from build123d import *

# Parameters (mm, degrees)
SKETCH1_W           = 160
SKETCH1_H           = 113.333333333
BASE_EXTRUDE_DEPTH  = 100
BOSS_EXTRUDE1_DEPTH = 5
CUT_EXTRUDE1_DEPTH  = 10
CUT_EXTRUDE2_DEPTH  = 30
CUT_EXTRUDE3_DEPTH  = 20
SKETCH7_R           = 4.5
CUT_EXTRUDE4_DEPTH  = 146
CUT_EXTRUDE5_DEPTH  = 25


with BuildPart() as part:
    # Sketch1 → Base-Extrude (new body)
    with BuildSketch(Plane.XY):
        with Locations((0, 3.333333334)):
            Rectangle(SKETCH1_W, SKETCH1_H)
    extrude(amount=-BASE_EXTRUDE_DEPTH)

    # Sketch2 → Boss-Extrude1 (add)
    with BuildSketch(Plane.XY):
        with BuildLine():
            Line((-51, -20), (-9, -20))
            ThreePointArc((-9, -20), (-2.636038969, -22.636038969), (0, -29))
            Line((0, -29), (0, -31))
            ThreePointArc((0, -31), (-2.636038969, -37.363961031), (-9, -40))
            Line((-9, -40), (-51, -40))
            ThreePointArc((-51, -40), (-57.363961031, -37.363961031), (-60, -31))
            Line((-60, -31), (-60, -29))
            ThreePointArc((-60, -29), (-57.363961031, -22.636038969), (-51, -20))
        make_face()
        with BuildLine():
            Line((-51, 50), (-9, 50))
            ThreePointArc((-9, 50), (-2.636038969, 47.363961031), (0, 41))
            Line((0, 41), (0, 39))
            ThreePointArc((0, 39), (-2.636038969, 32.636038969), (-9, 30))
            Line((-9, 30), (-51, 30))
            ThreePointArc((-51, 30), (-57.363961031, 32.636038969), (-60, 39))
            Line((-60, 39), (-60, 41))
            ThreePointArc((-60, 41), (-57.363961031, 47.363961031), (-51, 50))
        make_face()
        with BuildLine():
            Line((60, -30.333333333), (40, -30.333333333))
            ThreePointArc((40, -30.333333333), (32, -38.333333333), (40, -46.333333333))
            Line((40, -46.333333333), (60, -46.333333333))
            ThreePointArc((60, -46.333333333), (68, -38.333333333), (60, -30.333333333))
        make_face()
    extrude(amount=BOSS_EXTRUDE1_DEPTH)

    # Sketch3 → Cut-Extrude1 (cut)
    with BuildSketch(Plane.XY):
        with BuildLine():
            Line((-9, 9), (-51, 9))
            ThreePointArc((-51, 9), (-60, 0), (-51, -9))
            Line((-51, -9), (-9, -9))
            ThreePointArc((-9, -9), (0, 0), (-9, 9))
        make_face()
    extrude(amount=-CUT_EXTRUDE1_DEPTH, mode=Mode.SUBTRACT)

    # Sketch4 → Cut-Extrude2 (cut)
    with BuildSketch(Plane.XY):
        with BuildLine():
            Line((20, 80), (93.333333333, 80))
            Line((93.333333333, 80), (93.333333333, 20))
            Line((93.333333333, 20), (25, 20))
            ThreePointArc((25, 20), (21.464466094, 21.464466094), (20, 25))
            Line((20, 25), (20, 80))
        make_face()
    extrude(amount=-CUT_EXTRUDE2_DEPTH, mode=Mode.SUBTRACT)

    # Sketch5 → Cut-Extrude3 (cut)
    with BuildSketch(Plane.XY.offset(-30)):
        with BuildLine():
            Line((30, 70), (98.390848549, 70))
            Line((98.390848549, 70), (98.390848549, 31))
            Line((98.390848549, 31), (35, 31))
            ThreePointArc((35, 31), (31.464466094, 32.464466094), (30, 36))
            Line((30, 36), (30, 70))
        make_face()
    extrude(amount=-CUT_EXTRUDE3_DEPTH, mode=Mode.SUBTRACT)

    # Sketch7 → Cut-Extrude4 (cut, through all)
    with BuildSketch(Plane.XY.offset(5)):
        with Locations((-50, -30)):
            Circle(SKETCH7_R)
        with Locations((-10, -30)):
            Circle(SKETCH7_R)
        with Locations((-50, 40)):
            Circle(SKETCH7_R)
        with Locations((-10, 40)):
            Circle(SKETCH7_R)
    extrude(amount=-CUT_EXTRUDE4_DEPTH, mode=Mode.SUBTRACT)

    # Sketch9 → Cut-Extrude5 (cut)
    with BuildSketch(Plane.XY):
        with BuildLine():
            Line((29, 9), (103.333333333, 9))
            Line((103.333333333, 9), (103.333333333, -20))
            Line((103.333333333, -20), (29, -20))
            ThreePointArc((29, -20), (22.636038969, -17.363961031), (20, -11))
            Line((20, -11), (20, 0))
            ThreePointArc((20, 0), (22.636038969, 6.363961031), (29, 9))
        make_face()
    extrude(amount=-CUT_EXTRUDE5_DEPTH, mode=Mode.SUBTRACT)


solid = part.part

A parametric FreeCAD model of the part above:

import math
import FreeCAD as App
import Part
import Sketcher

doc = App.newDocument("Part")
params = doc.addObject("Spreadsheet::Sheet", "Params")
for row, (alias, value) in enumerate([
    ("sketch1_width", "160 mm"),
    ("pad1_length", "100 mm"),
    ("sketch2_radius", "9 mm"),
    ("sketch2_radius2", "8 mm"),
    ("sketch2_width", "42 mm"),
    ("sketch2_width2", "20 mm"),
    ("sketch2_height", "2 mm"),
    ("pad2_length", "5 mm"),
    ("sketch3_radius", "9 mm"),
    ("sketch3_width", "42 mm"),
    ("pocket1_length", "10 mm"),
    ("sketch4_radius", "5 mm"),
    ("sketch4_height", "55 mm"),
    ("pocket2_length", "30 mm"),
    ("sketch5_radius", "5 mm"),
    ("sketch5_height", "34 mm"),
    ("pocket3_length", "20 mm"),
    ("sketch6_diameter", "9 mm"),
    ("sketch7_radius", "9 mm"),
    ("sketch7_height", "11 mm"),
    ("pocket5_length", "25 mm"),
], start=1):
    params.set(f"A{row}", alias)
    params.set(f"B{row}", "=" + value)
    params.setAlias(f"B{row}", alias)

body = doc.addObject("PartDesign::Body", "Body")

# Sketch on XY plane
sketch1 = body.newObject("Sketcher::SketchObject", "Sketch")
sketch1.AttachmentSupport = (doc.getObject("XY_Plane"), [""])
sketch1.MapMode = "FlatFace"
sketch1.addGeometry(Part.LineSegment(App.Vector(-80, 60, 0), App.Vector(-80, -53.333333, 0)), False)
sketch1.addGeometry(Part.LineSegment(App.Vector(-80, -53.333333, 0), App.Vector(80, -53.333333, 0)), False)
sketch1.addGeometry(Part.LineSegment(App.Vector(80, -53.333333, 0), App.Vector(80, 60, 0)), False)
sketch1.addGeometry(Part.LineSegment(App.Vector(80, 60, 0), App.Vector(-80, 60, 0)), False)
sketch1.addConstraint(Sketcher.Constraint("Coincident", 0, 2, 1, 1))
sketch1.addConstraint(Sketcher.Constraint("Coincident", 1, 2, 2, 1))
sketch1.addConstraint(Sketcher.Constraint("Coincident", 2, 2, 3, 1))
sketch1.addConstraint(Sketcher.Constraint("Coincident", 3, 2, 0, 1))
sketch1.addConstraint(Sketcher.Constraint("Vertical", 0))
sketch1.addConstraint(Sketcher.Constraint("Horizontal", 1))
sketch1.addConstraint(Sketcher.Constraint("Vertical", 2))
sketch1.addConstraint(Sketcher.Constraint("Horizontal", 3))
sketch1.addConstraint(Sketcher.Constraint("DistanceX", 1, 1, 1, 2, 160.0))
sketch1.addConstraint(Sketcher.Constraint("DistanceX", 0, 2, -1, 1, 80.0))
sketch1.addConstraint(Sketcher.Constraint("DistanceY", -1, 1, 2, 2, 60.0))
sketch1.addConstraint(Sketcher.Constraint("DistanceY", 0, 2, 0, 1, 113.333333))
sketch1.setExpression("Constraints[8]", "Params.sketch1_width")
pad1 = body.newObject("PartDesign::Pad", "Pad")
pad1.Profile = sketch1
pad1.setExpression("Length", "Params.pad1_length")
pad1.Reversed = True

# Sketch on XY plane
sketch2 = body.newObject("Sketcher::SketchObject", "Sketch001")
sketch2.AttachmentSupport = (doc.getObject("XY_Plane"), [""])
sketch2.MapMode = "FlatFace"
sketch2.addGeometry(Part.LineSegment(App.Vector(-9, -20, 0), App.Vector(-51, -20, 0)), False)
sketch2.addGeometry(Part.ArcOfCircle(Part.Circle(App.Vector(-51, -29, 0), App.Vector(0, 0, 1), 9), math.radians(90), math.radians(180)), False)
sketch2.addGeometry(Part.LineSegment(App.Vector(-60, -29, 0), App.Vector(-60, -31, 0)), False)
sketch2.addGeometry(Part.ArcOfCircle(Part.Circle(App.Vector(-51, -31, 0), App.Vector(0, 0, 1), 9), math.radians(180), math.radians(270)), False)
sketch2.addGeometry(Part.LineSegment(App.Vector(-51, -40, 0), App.Vector(-9, -40, 0)), False)
sketch2.addGeometry(Part.ArcOfCircle(Part.Circle(App.Vector(-9, -31, 0), App.Vector(0, 0, 1), 9), math.radians(-90), math.radians(0)), False)
sketch2.addGeometry(Part.LineSegment(App.Vector(0, -31, 0), App.Vector(0, -29, 0)), False)
sketch2.addGeometry(Part.ArcOfCircle(Part.Circle(App.Vector(-9, -29, 0), App.Vector(0, 0, 1), 9), math.radians(0), math.radians(90)), False)
sketch2.addGeometry(Part.LineSegment(App.Vector(-9, 50, 0), App.Vector(-51, 50, 0)), False)
sketch2.addGeometry(Part.ArcOfCircle(Part.Circle(App.Vector(-51, 41, 0), App.Vector(0, 0, 1), 9), math.radians(90), math.radians(180)), False)
sketch2.addGeometry(Part.LineSegment(App.Vector(-60, 41, 0), App.Vector(-60, 39, 0)), False)
sketch2.addGeometry(Part.ArcOfCircle(Part.Circle(App.Vector(-51, 39, 0), App.Vector(0, 0, 1), 9), math.radians(180), math.radians(270)), False)
sketch2.addGeometry(Part.LineSegment(App.Vector(-51, 30, 0), App.Vector(-9, 30, 0)), False)
sketch2.addGeometry(Part.ArcOfCircle(Part.Circle(App.Vector(-9, 39, 0), App.Vector(0, 0, 1), 9), math.radians(-90), math.radians(0)), False)
sketch2.addGeometry(Part.LineSegment(App.Vector(0, 39, 0), App.Vector(0, 41, 0)), False)
sketch2.addGeometry(Part.ArcOfCircle(Part.Circle(App.Vector(-9, 41, 0), App.Vector(0, 0, 1), 9), math.radians(0), math.radians(90)), False)
sketch2.addGeometry(Part.LineSegment(App.Vector(60, -30.333333, 0), App.Vector(40, -30.333333, 0)), False)
sketch2.addGeometry(Part.ArcOfCircle(Part.Circle(App.Vector(40, -38.333333, 0), App.Vector(0, 0, 1), 8), math.radians(90), math.radians(270)), False)
sketch2.addGeometry(Part.LineSegment(App.Vector(40, -46.333333, 0), App.Vector(60, -46.333333, 0)), False)
sketch2.addGeometry(Part.ArcOfCircle(Part.Circle(App.Vector(60, -38.333333, 0), App.Vector(0, 0, 1), 8), math.radians(-90), math.radians(90)), False)
sketch2.addConstraint(Sketcher.Constraint("Tangent", 0, 2, 1, 1))
sketch2.addConstraint(Sketcher.Constraint("Tangent", 1, 2, 2, 1))
sketch2.addConstraint(Sketcher.Constraint("Tangent", 2, 2, 3, 1))
sketch2.addConstraint(Sketcher.Constraint("Tangent", 3, 2, 4, 1))
sketch2.addConstraint(Sketcher.Constraint("Tangent", 4, 2, 5, 1))
sketch2.addConstraint(Sketcher.Constraint("Tangent", 5, 2, 6, 1))
sketch2.addConstraint(Sketcher.Constraint("Tangent", 6, 2, 7, 1))
sketch2.addConstraint(Sketcher.Constraint("Tangent", 7, 2, 0, 1))
sketch2.addConstraint(Sketcher.Constraint("Tangent", 8, 2, 9, 1))
sketch2.addConstraint(Sketcher.Constraint("Tangent", 9, 2, 10, 1))
sketch2.addConstraint(Sketcher.Constraint("Tangent", 10, 2, 11, 1))
sketch2.addConstraint(Sketcher.Constraint("Tangent", 11, 2, 12, 1))
sketch2.addConstraint(Sketcher.Constraint("Tangent", 12, 2, 13, 1))
sketch2.addConstraint(Sketcher.Constraint("Tangent", 13, 2, 14, 1))
sketch2.addConstraint(Sketcher.Constraint("Tangent", 14, 2, 15, 1))
sketch2.addConstraint(Sketcher.Constraint("Tangent", 15, 2, 8, 1))
sketch2.addConstraint(Sketcher.Constraint("Tangent", 16, 2, 17, 1))
sketch2.addConstraint(Sketcher.Constraint("Tangent", 17, 2, 18, 1))
sketch2.addConstraint(Sketcher.Constraint("Tangent", 18, 2, 19, 1))
sketch2.addConstraint(Sketcher.Constraint("Tangent", 19, 2, 16, 1))
sketch2.addConstraint(Sketcher.Constraint("Horizontal", 0))
sketch2.addConstraint(Sketcher.Constraint("Vertical", 2))
sketch2.addConstraint(Sketcher.Constraint("Horizontal", 4))
sketch2.addConstraint(Sketcher.Constraint("Vertical", 6))
sketch2.addConstraint(Sketcher.Constraint("Horizontal", 8))
sketch2.addConstraint(Sketcher.Constraint("Vertical", 10))
sketch2.addConstraint(Sketcher.Constraint("Horizontal", 12))
sketch2.addConstraint(Sketcher.Constraint("Vertical", 14))
sketch2.addConstraint(Sketcher.Constraint("Horizontal", 16))
sketch2.addConstraint(Sketcher.Constraint("Horizontal", 18))
sketch2.addConstraint(Sketcher.Constraint("Equal", 1, 3))
sketch2.addConstraint(Sketcher.Constraint("Equal", 3, 5))
sketch2.addConstraint(Sketcher.Constraint("Equal", 5, 7))
sketch2.addConstraint(Sketcher.Constraint("Equal", 7, 9))
sketch2.addConstraint(Sketcher.Constraint("Equal", 9, 11))
sketch2.addConstraint(Sketcher.Constraint("Equal", 11, 13))
sketch2.addConstraint(Sketcher.Constraint("Equal", 13, 15))
sketch2.addConstraint(Sketcher.Constraint("PointOnObject", 5, 2, -2))
sketch2.addConstraint(Sketcher.Constraint("PointOnObject", 13, 2, -2))
sketch2.addConstraint(Sketcher.Constraint("Vertical", 3, 3, 9, 3))
sketch2.addConstraint(Sketcher.Constraint("Equal", 6, 10))
sketch2.addConstraint(Sketcher.Constraint("Radius", 1, 9.0))
sketch2.addConstraint(Sketcher.Constraint("Radius", 17, 8.0))
sketch2.addConstraint(Sketcher.Constraint("DistanceX", 0, 2, 0, 1, 42.0))
sketch2.addConstraint(Sketcher.Constraint("DistanceX", 16, 2, 16, 1, 20.0))
sketch2.addConstraint(Sketcher.Constraint("DistanceY", 2, 2, 2, 1, 2.0))
sketch2.addConstraint(Sketcher.Constraint("DistanceY", 1, 3, -1, 1, 29.0))
sketch2.addConstraint(Sketcher.Constraint("DistanceY", -1, 1, 9, 3, 41.0))
sketch2.addConstraint(Sketcher.Constraint("DistanceX", -1, 1, 17, 3, 40.0))
sketch2.addConstraint(Sketcher.Constraint("DistanceY", 17, 3, -1, 1, 38.333333))
sketch2.setExpression("Constraints[41]", "Params.sketch2_radius")
sketch2.setExpression("Constraints[42]", "Params.sketch2_radius2")
sketch2.setExpression("Constraints[43]", "Params.sketch2_width")
sketch2.setExpression("Constraints[44]", "Params.sketch2_width2")
sketch2.setExpression("Constraints[45]", "Params.sketch2_height")
pad2 = body.newObject("PartDesign::Pad", "Pad001")
pad2.Profile = sketch2
pad2.setExpression("Length", "Params.pad2_length")

# Sketch on XY plane
sketch3 = body.newObject("Sketcher::SketchObject", "Sketch002")
sketch3.AttachmentSupport = (doc.getObject("XY_Plane"), [""])
sketch3.MapMode = "FlatFace"
sketch3.addGeometry(Part.LineSegment(App.Vector(-9, 9, 0), App.Vector(-51, 9, 0)), False)
sketch3.addGeometry(Part.ArcOfCircle(Part.Circle(App.Vector(-51, 0, 0), App.Vector(0, 0, 1), 9), math.radians(90), math.radians(270)), False)
sketch3.addGeometry(Part.LineSegment(App.Vector(-51, -9, 0), App.Vector(-9, -9, 0)), False)
sketch3.addGeometry(Part.ArcOfCircle(Part.Circle(App.Vector(-9, 0, 0), App.Vector(0, 0, 1), 9), math.radians(-90), math.radians(90)), False)
sketch3.addConstraint(Sketcher.Constraint("Tangent", 0, 2, 1, 1))
sketch3.addConstraint(Sketcher.Constraint("Tangent", 1, 2, 2, 1))
sketch3.addConstraint(Sketcher.Constraint("Tangent", 2, 2, 3, 1))
sketch3.addConstraint(Sketcher.Constraint("Tangent", 3, 2, 0, 1))
sketch3.addConstraint(Sketcher.Constraint("Horizontal", 0))
sketch3.addConstraint(Sketcher.Constraint("Horizontal", 2))
sketch3.addConstraint(Sketcher.Constraint("PointOnObject", 1, 3, -1))
sketch3.addConstraint(Sketcher.Constraint("Radius", 1, 9.0))
sketch3.addConstraint(Sketcher.Constraint("DistanceX", 0, 2, 0, 1, 42.0))
sketch3.addConstraint(Sketcher.Constraint("DistanceX", 1, 3, -1, 1, 51.0))
sketch3.setExpression("Constraints[7]", "Params.sketch3_radius")
sketch3.setExpression("Constraints[8]", "Params.sketch3_width")
pocket1 = body.newObject("PartDesign::Pocket", "Pocket")
pocket1.Profile = sketch3
pocket1.setExpression("Length", "Params.pocket1_length")

# Sketch on XY plane
sketch4 = body.newObject("Sketcher::SketchObject", "Sketch003")
sketch4.AttachmentSupport = (doc.getObject("XY_Plane"), [""])
sketch4.MapMode = "FlatFace"
sketch4.addGeometry(Part.LineSegment(App.Vector(93.333333, 80, 0), App.Vector(20, 80, 0)), False)
sketch4.addGeometry(Part.LineSegment(App.Vector(20, 80, 0), App.Vector(20, 25, 0)), False)
sketch4.addGeometry(Part.ArcOfCircle(Part.Circle(App.Vector(25, 25, 0), App.Vector(0, 0, 1), 5), math.radians(180), math.radians(270)), False)
sketch4.addGeometry(Part.LineSegment(App.Vector(25, 20, 0), App.Vector(93.333333, 20, 0)), False)
sketch4.addGeometry(Part.LineSegment(App.Vector(93.333333, 20, 0), App.Vector(93.333333, 80, 0)), False)
sketch4.addConstraint(Sketcher.Constraint("Coincident", 0, 2, 1, 1))
sketch4.addConstraint(Sketcher.Constraint("Tangent", 1, 2, 2, 1))
sketch4.addConstraint(Sketcher.Constraint("Tangent", 2, 2, 3, 1))
sketch4.addConstraint(Sketcher.Constraint("Coincident", 3, 2, 4, 1))
sketch4.addConstraint(Sketcher.Constraint("Coincident", 4, 2, 0, 1))
sketch4.addConstraint(Sketcher.Constraint("Horizontal", 0))
sketch4.addConstraint(Sketcher.Constraint("Vertical", 1))
sketch4.addConstraint(Sketcher.Constraint("Horizontal", 3))
sketch4.addConstraint(Sketcher.Constraint("Vertical", 4))
sketch4.addConstraint(Sketcher.Constraint("Radius", 2, 5.0))
sketch4.addConstraint(Sketcher.Constraint("DistanceY", 1, 2, 1, 1, 55.0))
sketch4.addConstraint(Sketcher.Constraint("DistanceX", -1, 1, 2, 3, 25.0))
sketch4.addConstraint(Sketcher.Constraint("DistanceY", -1, 1, 2, 3, 25.0))
sketch4.addConstraint(Sketcher.Constraint("DistanceX", 0, 2, 0, 1, 73.333333))
sketch4.setExpression("Constraints[9]", "Params.sketch4_radius")
sketch4.setExpression("Constraints[10]", "Params.sketch4_height")
pocket2 = body.newObject("PartDesign::Pocket", "Pocket001")
pocket2.Profile = sketch4
pocket2.setExpression("Length", "Params.pocket2_length")

# Sketch on XY plane
sketch5 = body.newObject("Sketcher::SketchObject", "Sketch004")
sketch5.AttachmentSupport = (doc.getObject("XY_Plane"), [""])
sketch5.MapMode = "FlatFace"
sketch5.AttachmentOffset = App.Placement(App.Vector(0, 0, -30), App.Rotation())
sketch5.addGeometry(Part.LineSegment(App.Vector(98.390849, 70, 0), App.Vector(30, 70, 0)), False)
sketch5.addGeometry(Part.LineSegment(App.Vector(30, 70, 0), App.Vector(30, 36, 0)), False)
sketch5.addGeometry(Part.ArcOfCircle(Part.Circle(App.Vector(35, 36, 0), App.Vector(0, 0, 1), 5), math.radians(180), math.radians(270)), False)
sketch5.addGeometry(Part.LineSegment(App.Vector(35, 31, 0), App.Vector(98.390849, 31, 0)), False)
sketch5.addGeometry(Part.LineSegment(App.Vector(98.390849, 31, 0), App.Vector(98.390849, 70, 0)), False)
sketch5.addConstraint(Sketcher.Constraint("Coincident", 0, 2, 1, 1))
sketch5.addConstraint(Sketcher.Constraint("Tangent", 1, 2, 2, 1))
sketch5.addConstraint(Sketcher.Constraint("Tangent", 2, 2, 3, 1))
sketch5.addConstraint(Sketcher.Constraint("Coincident", 3, 2, 4, 1))
sketch5.addConstraint(Sketcher.Constraint("Coincident", 4, 2, 0, 1))
sketch5.addConstraint(Sketcher.Constraint("Horizontal", 0))
sketch5.addConstraint(Sketcher.Constraint("Vertical", 1))
sketch5.addConstraint(Sketcher.Constraint("Horizontal", 3))
sketch5.addConstraint(Sketcher.Constraint("Vertical", 4))
sketch5.addConstraint(Sketcher.Constraint("Radius", 2, 5.0))
sketch5.addConstraint(Sketcher.Constraint("DistanceY", 1, 2, 1, 1, 34.0))
sketch5.addConstraint(Sketcher.Constraint("DistanceX", -1, 1, 2, 3, 35.0))
sketch5.addConstraint(Sketcher.Constraint("DistanceY", -1, 1, 2, 3, 36.0))
sketch5.addConstraint(Sketcher.Constraint("DistanceX", 0, 2, 0, 1, 68.390849))
sketch5.setExpression("Constraints[9]", "Params.sketch5_radius")
sketch5.setExpression("Constraints[10]", "Params.sketch5_height")
pocket3 = body.newObject("PartDesign::Pocket", "Pocket002")
pocket3.Profile = sketch5
pocket3.setExpression("Length", "Params.pocket3_length")

# Sketch on XY plane
sketch6 = body.newObject("Sketcher::SketchObject", "Sketch005")
sketch6.AttachmentSupport = (doc.getObject("XY_Plane"), [""])
sketch6.MapMode = "FlatFace"
sketch6.AttachmentOffset = App.Placement(App.Vector(0, 0, 5), App.Rotation())
sketch6.addGeometry(Part.Circle(App.Vector(-50, -30, 0), App.Vector(0, 0, 1), 4.5), False)
sketch6.addGeometry(Part.Circle(App.Vector(-10, -30, 0), App.Vector(0, 0, 1), 4.5), False)
sketch6.addGeometry(Part.Circle(App.Vector(-50, 40, 0), App.Vector(0, 0, 1), 4.5), False)
sketch6.addGeometry(Part.Circle(App.Vector(-10, 40, 0), App.Vector(0, 0, 1), 4.5), False)
sketch6.addConstraint(Sketcher.Constraint("Equal", 0, 1))
sketch6.addConstraint(Sketcher.Constraint("Equal", 1, 2))
sketch6.addConstraint(Sketcher.Constraint("Equal", 2, 3))
sketch6.addConstraint(Sketcher.Constraint("Horizontal", 0, 3, 1, 3))
sketch6.addConstraint(Sketcher.Constraint("Horizontal", 2, 3, 3, 3))
sketch6.addConstraint(Sketcher.Constraint("Vertical", 0, 3, 2, 3))
sketch6.addConstraint(Sketcher.Constraint("Vertical", 1, 3, 3, 3))
sketch6.addConstraint(Sketcher.Constraint("Diameter", 0, 9.0))
sketch6.addConstraint(Sketcher.Constraint("DistanceX", 0, 3, -1, 1, 50.0))
sketch6.addConstraint(Sketcher.Constraint("DistanceY", 0, 3, -1, 1, 30.0))
sketch6.addConstraint(Sketcher.Constraint("DistanceX", 1, 3, -1, 1, 10.0))
sketch6.addConstraint(Sketcher.Constraint("DistanceY", -1, 1, 2, 3, 40.0))
sketch6.setExpression("Constraints[7]", "Params.sketch6_diameter")
pocket4 = body.newObject("PartDesign::Pocket", "Pocket003")
pocket4.Profile = sketch6
pocket4.Type = "ThroughAll"

# Sketch on XY plane
sketch7 = body.newObject("Sketcher::SketchObject", "Sketch006")
sketch7.AttachmentSupport = (doc.getObject("XY_Plane"), [""])
sketch7.MapMode = "FlatFace"
sketch7.addGeometry(Part.LineSegment(App.Vector(103.333333, 9, 0), App.Vector(29, 9, 0)), False)
sketch7.addGeometry(Part.ArcOfCircle(Part.Circle(App.Vector(29, 0, 0), App.Vector(0, 0, 1), 9), math.radians(90), math.radians(180)), False)
sketch7.addGeometry(Part.LineSegment(App.Vector(20, 0, 0), App.Vector(20, -11, 0)), False)
sketch7.addGeometry(Part.ArcOfCircle(Part.Circle(App.Vector(29, -11, 0), App.Vector(0, 0, 1), 9), math.radians(180), math.radians(270)), False)
sketch7.addGeometry(Part.LineSegment(App.Vector(29, -20, 0), App.Vector(103.333333, -20, 0)), False)
sketch7.addGeometry(Part.LineSegment(App.Vector(103.333333, -20, 0), App.Vector(103.333333, 9, 0)), False)
sketch7.addConstraint(Sketcher.Constraint("Tangent", 0, 2, 1, 1))
sketch7.addConstraint(Sketcher.Constraint("Tangent", 1, 2, 2, 1))
sketch7.addConstraint(Sketcher.Constraint("Tangent", 2, 2, 3, 1))
sketch7.addConstraint(Sketcher.Constraint("Tangent", 3, 2, 4, 1))
sketch7.addConstraint(Sketcher.Constraint("Coincident", 4, 2, 5, 1))
sketch7.addConstraint(Sketcher.Constraint("Coincident", 5, 2, 0, 1))
sketch7.addConstraint(Sketcher.Constraint("Horizontal", 0))
sketch7.addConstraint(Sketcher.Constraint("Vertical", 2))
sketch7.addConstraint(Sketcher.Constraint("Horizontal", 4))
sketch7.addConstraint(Sketcher.Constraint("Vertical", 5))
sketch7.addConstraint(Sketcher.Constraint("Equal", 1, 3))
sketch7.addConstraint(Sketcher.Constraint("PointOnObject", 1, 3, -1))
sketch7.addConstraint(Sketcher.Constraint("Radius", 1, 9.0))
sketch7.addConstraint(Sketcher.Constraint("DistanceY", 2, 2, 2, 1, 11.0))
sketch7.addConstraint(Sketcher.Constraint("DistanceX", -1, 1, 1, 3, 29.0))
sketch7.addConstraint(Sketcher.Constraint("DistanceX", 0, 2, 0, 1, 74.333333))
sketch7.setExpression("Constraints[12]", "Params.sketch7_radius")
sketch7.setExpression("Constraints[13]", "Params.sketch7_height")
pocket5 = body.newObject("PartDesign::Pocket", "Pocket004")
pocket5.Profile = sketch7
pocket5.setExpression("Length", "Params.pocket5_length")

doc.recompute()
